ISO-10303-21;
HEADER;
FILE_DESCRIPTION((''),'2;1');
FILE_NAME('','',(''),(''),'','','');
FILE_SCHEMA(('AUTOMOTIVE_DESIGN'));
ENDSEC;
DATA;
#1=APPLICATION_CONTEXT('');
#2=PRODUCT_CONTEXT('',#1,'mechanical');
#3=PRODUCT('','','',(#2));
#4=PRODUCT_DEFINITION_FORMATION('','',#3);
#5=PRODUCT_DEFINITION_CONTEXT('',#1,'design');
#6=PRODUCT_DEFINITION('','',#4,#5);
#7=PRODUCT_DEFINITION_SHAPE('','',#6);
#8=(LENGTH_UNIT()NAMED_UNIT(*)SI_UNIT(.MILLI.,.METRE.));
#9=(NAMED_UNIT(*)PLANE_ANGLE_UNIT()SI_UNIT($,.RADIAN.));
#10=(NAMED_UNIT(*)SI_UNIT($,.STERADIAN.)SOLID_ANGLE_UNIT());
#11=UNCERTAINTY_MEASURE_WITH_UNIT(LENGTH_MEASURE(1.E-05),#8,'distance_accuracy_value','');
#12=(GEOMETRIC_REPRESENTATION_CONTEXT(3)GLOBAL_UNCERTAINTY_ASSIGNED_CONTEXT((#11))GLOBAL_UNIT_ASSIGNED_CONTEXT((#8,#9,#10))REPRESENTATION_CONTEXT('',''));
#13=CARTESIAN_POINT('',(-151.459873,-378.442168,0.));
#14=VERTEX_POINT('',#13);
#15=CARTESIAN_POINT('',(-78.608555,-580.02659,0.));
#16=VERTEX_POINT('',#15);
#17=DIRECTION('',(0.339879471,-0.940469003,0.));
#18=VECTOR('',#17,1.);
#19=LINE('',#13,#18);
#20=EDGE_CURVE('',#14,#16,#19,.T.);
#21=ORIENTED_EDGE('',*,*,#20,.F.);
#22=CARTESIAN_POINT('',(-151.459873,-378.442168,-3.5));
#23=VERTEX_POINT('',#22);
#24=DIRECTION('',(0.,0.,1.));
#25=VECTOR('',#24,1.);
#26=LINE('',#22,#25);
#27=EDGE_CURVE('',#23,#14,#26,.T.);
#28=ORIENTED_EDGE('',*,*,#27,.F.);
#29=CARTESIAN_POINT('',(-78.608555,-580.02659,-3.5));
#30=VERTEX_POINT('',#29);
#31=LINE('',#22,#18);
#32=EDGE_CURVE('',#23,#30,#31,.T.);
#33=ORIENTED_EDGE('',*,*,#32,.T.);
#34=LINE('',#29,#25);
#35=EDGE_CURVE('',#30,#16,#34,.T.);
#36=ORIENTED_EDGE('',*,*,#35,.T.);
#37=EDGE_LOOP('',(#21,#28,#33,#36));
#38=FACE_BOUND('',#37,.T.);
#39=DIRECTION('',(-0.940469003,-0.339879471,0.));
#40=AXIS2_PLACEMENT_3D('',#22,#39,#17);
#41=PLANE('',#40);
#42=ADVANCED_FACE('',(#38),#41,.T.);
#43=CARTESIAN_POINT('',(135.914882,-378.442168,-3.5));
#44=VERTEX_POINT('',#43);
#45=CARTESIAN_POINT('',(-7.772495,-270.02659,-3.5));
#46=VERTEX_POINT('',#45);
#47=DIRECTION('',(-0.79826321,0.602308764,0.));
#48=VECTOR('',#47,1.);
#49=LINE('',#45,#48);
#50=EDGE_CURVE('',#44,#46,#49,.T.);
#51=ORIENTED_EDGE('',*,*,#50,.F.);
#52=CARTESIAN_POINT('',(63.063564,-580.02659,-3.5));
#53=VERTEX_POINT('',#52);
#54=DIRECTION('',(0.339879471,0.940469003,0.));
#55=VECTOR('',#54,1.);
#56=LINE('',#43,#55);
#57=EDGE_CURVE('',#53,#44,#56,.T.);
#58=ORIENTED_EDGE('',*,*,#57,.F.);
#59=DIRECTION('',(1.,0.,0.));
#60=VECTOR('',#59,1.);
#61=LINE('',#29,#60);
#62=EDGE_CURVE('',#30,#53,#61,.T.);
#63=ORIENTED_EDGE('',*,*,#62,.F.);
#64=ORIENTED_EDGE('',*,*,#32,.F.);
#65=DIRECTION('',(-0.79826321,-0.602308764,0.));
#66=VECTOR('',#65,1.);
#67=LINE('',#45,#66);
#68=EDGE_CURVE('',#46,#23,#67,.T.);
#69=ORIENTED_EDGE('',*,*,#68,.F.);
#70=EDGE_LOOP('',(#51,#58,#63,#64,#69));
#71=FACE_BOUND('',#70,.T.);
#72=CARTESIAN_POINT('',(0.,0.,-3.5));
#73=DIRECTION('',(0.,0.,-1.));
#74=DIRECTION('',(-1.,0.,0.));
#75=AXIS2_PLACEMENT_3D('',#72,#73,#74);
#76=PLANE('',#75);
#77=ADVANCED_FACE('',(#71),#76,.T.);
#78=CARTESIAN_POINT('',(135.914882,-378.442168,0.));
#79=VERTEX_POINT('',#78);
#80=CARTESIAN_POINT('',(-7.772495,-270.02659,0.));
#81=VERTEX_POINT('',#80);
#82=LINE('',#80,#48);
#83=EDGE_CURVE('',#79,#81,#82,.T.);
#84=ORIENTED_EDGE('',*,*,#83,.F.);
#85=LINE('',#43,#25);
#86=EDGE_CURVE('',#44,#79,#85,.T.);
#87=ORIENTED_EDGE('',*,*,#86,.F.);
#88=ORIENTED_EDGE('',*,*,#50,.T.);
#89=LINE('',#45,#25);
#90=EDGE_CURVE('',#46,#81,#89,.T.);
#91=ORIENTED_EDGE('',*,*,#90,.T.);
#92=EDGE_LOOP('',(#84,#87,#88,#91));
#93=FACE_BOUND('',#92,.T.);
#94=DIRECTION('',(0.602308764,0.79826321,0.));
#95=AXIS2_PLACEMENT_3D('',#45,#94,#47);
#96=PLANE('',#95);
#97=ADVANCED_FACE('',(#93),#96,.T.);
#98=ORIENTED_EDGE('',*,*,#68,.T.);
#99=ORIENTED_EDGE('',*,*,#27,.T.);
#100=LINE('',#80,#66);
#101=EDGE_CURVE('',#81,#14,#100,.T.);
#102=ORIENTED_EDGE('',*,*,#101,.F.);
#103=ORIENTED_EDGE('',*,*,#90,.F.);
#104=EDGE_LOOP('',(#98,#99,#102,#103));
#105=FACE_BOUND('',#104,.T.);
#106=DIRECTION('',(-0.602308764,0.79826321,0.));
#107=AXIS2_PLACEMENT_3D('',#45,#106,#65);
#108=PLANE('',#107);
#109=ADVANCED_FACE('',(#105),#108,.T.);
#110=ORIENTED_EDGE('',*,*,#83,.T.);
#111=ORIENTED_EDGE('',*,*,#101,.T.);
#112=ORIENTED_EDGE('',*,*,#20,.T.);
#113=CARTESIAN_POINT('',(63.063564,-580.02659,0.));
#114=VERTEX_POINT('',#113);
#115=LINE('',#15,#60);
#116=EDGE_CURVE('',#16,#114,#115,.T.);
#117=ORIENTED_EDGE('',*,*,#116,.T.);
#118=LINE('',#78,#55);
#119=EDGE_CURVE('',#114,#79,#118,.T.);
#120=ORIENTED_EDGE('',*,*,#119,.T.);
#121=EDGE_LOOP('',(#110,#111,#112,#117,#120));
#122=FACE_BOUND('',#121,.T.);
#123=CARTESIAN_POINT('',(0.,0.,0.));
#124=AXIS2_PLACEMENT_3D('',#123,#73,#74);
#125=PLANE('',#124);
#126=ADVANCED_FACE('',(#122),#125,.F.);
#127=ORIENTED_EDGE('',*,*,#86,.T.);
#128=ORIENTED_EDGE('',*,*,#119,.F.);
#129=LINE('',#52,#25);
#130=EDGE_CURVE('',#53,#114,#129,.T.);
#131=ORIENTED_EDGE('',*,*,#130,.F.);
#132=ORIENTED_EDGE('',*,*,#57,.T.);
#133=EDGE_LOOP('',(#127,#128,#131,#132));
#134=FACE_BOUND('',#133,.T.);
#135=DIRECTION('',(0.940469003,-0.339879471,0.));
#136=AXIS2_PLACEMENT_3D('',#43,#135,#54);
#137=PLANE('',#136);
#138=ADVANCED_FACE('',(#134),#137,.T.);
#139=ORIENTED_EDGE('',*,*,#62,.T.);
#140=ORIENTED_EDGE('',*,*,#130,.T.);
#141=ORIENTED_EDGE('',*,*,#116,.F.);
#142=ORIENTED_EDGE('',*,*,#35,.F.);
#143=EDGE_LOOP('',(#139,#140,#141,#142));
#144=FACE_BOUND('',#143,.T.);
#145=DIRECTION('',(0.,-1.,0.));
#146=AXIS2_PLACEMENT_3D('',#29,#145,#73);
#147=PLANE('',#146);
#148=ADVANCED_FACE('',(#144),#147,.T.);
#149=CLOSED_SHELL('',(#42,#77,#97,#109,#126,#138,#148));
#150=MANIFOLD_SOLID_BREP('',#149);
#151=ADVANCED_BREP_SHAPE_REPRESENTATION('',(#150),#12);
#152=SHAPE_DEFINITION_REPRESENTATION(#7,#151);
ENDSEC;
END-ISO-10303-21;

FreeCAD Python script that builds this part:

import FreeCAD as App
import Part
import Sketcher
Q = App.Units.Quantity


def add_polygon(sketch, points):
    """Adds a closed chain of lines whose ends are joined by coincident constraints."""
    first, n = sketch.GeometryCount, len(points)
    for a, b in zip(points, points[1:] + points[:1]):
        sketch.addGeometry(Part.LineSegment(App.Vector(*a, 0), App.Vector(*b, 0)), False)
    for i in range(n):
        sketch.addConstraint(Sketcher.Constraint("Coincident", first + i, 2, first + (i + 1) % n, 1))

doc = App.newDocument("Part")
body = doc.addObject("PartDesign::Body", "Body")

# Sketch on XY plane
sketch1 = body.newObject("Sketcher::SketchObject", "Sketch")
sketch1.AttachmentSupport = (doc.getObject("XY_Plane"), [""])
sketch1.MapMode = "FlatFace"
add_polygon(sketch1, [(-8, -270), (-151, -378), (-79, -580), (63, -580), (136, -378)])  # lines 0-4
sketch1.addConstraint(Sketcher.Constraint("Horizontal", 2))
sketch1.addConstraint(Sketcher.Constraint("Horizontal", 0, 2, 3, 2))
sketch1.addConstraint(Sketcher.Constraint("Equal", 1, 3))
sketch1.addConstraint(Sketcher.Constraint("Equal", 0, 4))
sketch1.addConstraint(Sketcher.Constraint("Distance", 0, Q("180 mm")))
sketch1.addConstraint(Sketcher.Constraint("DistanceY", 1, 2, 4, 2, Q("310 mm")))
sketch1.addConstraint(Sketcher.Constraint("DistanceX", 2, 1, 2, 2, Q("141.672119 mm")))
sketch1.addConstraint(Sketcher.Constraint("Distance", 1, Q("214.344568 mm")))
sketch1.addConstraint(Sketcher.Constraint("DistanceY", 1, 2, -1, 1, Q("580.02659 mm")))
sketch1.addConstraint(Sketcher.Constraint("DistanceX", 0, 2, -1, 1, Q("151.459873 mm")))
pad1 = body.newObject("PartDesign::Pad", "Pad")
pad1.Profile = sketch1
pad1.Length = 3.5
pad1.Reversed = True

doc.recompute()
